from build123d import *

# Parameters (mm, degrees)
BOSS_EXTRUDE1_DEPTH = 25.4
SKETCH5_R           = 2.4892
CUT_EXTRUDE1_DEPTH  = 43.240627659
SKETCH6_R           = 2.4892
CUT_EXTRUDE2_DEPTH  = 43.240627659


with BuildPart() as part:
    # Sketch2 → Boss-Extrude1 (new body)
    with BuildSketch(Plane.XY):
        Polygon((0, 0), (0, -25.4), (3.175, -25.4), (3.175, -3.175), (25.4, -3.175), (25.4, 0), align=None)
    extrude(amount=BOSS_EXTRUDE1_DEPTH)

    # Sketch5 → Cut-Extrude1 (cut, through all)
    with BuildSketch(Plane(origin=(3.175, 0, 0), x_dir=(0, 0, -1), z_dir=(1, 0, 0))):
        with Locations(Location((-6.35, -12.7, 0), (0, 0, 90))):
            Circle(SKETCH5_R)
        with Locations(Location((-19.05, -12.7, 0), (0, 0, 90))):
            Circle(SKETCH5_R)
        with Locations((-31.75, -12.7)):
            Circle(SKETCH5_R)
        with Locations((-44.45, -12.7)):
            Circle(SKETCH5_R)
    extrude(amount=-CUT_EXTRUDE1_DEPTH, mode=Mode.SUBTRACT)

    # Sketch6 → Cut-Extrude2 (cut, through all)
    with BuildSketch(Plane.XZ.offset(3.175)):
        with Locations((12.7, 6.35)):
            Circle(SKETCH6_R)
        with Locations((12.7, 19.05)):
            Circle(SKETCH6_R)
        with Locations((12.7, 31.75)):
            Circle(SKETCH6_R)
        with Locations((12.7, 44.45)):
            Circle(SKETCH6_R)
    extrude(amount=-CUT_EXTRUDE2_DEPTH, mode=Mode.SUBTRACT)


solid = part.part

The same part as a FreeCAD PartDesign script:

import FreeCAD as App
import Part
import Sketcher
Q = App.Units.Quantity


def add_polygon(sketch, points):
    """Adds a closed chain of lines whose ends are joined by coincident constraints."""
    first, n = sketch.GeometryCount, len(points)
    for a, b in zip(points, points[1:] + points[:1]):
        sketch.addGeometry(Part.LineSegment(App.Vector(*a, 0), App.Vector(*b, 0)), False)
    for i in range(n):
        sketch.addConstraint(Sketcher.Constraint("Coincident", first + i, 2, first + (i + 1) % n, 1))

doc = App.newDocument("Part")
body = doc.addObject("PartDesign::Body", "Body")

sketch1 = body.newObject("Sketcher::SketchObject", "Sketch")
sketch1.AttachmentSupport = (doc.getObject("XY_Plane"), [""])
sketch1.MapMode = "FlatFace"
add_polygon(sketch1, [(0, 0), (0, -25.4), (3.2, -25.4), (3.2, -3.2), (25.4, -3.2), (25.4, 0)])
sketch1.addConstraint([
    Sketcher.Constraint("Vertical", 0),
    Sketcher.Constraint("Horizontal", 1),
    Sketcher.Constraint("Vertical", 2),
    Sketcher.Constraint("Horizontal", 3),
    Sketcher.Constraint("Vertical", 4),
    Sketcher.Constraint("Horizontal", 5),
    Sketcher.Constraint("Coincident", 5, 2, -1, 1),
    Sketcher.Constraint("Equal", 5, 0),
    Sketcher.Constraint("Equal", 3, 2),
    Sketcher.Constraint("DistanceX", 5, 2, 5, 1, Q("1 in")),
    Sketcher.Constraint("DistanceX", 1, 1, 1, 2, Q("0.125 in")),
])
pad1 = body.newObject("PartDesign::Pad", "Pad")
pad1.Profile = sketch1
pad1.Length = Q("1 in")

sketch2 = body.newObject("Sketcher::SketchObject", "Sketch001")
sketch2.AttachmentSupport = (doc.getObject("YZ_Plane"), [""])
sketch2.MapMode = "FlatFace"
sketch2.AttachmentOffset = App.Placement(App.Vector(0, 0, 0.125 * 25.4), App.Rotation())
sketch2.addGeometry([
    Part.Circle(App.Vector(-12.7, 6.3, 0), App.Vector(0, 0, 1), 2.5),
    Part.Circle(App.Vector(-12.7, 19.1, 0), App.Vector(0, 0, 1), 2.5),
    Part.Circle(App.Vector(-12.7, 31.8, 0), App.Vector(0, 0, 1), 2.5),
    Part.Circle(App.Vector(-12.7, 44.5, 0), App.Vector(0, 0, 1), 2.5),
], False)
sketch2.addConstraint([
    Sketcher.Constraint("Equal", 0, 1),
    Sketcher.Constraint("Equal", 1, 2),
    Sketcher.Constraint("Equal", 2, 3),
    Sketcher.Constraint("Vertical", 0, 3, 1, 3),
    Sketcher.Constraint("Vertical", 1, 3, 2, 3),
    Sketcher.Constraint("Vertical", 2, 3, 3, 3),
    Sketcher.Constraint("Diameter", 0, Q("0.196 in")),
    Sketcher.Constraint("DistanceY", 0, 3, 2, 3, Q("1 in")),
    Sketcher.Constraint("DistanceY", 1, 3, 3, 3, Q("1 in")),
    Sketcher.Constraint("DistanceX", 0, 3, -1, 1, Q("0.5 in")),
    Sketcher.Constraint("DistanceY", 0, 3, 1, 3, Q("0.5 in")),
    Sketcher.Constraint("DistanceY", -1, 1, 0, 3, Q("0.25 in")),
])
pocket1 = body.newObject("PartDesign::Pocket", "Pocket")
pocket1.Profile = sketch2
pocket1.Type = "ThroughAll"

sketch3 = body.newObject("Sketcher::SketchObject", "Sketch002")
sketch3.AttachmentSupport = (doc.getObject("XZ_Plane"), [""])
sketch3.MapMode = "FlatFace"
sketch3.AttachmentOffset = App.Placement(App.Vector(0, 0, 0.125 * 25.4), App.Rotation())
sketch3.addGeometry([
    Part.Circle(App.Vector(12.7, 6.3, 0), App.Vector(0, 0, 1), 2.5),
    Part.Circle(App.Vector(12.7, 19.1, 0), App.Vector(0, 0, 1), 2.5),
    Part.Circle(App.Vector(12.7, 31.8, 0), App.Vector(0, 0, 1), 2.5),
    Part.Circle(App.Vector(12.7, 44.5, 0), App.Vector(0, 0, 1), 2.5),
], False)
sketch3.addConstraint([
    Sketcher.Constraint("Equal", 0, 1),
    Sketcher.Constraint("Equal", 1, 2),
    Sketcher.Constraint("Equal", 2, 3),
    Sketcher.Constraint("Vertical", 0, 3, 1, 3),
    Sketcher.Constraint("Vertical", 1, 3, 2, 3),
    Sketcher.Constraint("Vertical", 2, 3, 3, 3),
    Sketcher.Constraint("Diameter", 0, Q("0.196 in")),
    Sketcher.Constraint("DistanceY", 0, 3, 2, 3, Q("1 in")),
    Sketcher.Constraint("DistanceY", 1, 3, 3, 3, Q("1 in")),
    Sketcher.Constraint("DistanceX", -1, 1, 0, 3, Q("0.5 in")),
    Sketcher.Constraint("DistanceY", 0, 3, 1, 3, Q("0.5 in")),
    Sketcher.Constraint("DistanceY", -1, 1, 0, 3, Q("0.25 in")),
])
pocket2 = body.newObject("PartDesign::Pocket", "Pocket001")
pocket2.Profile = sketch3
pocket2.Type = "ThroughAll"

doc.recompute()
